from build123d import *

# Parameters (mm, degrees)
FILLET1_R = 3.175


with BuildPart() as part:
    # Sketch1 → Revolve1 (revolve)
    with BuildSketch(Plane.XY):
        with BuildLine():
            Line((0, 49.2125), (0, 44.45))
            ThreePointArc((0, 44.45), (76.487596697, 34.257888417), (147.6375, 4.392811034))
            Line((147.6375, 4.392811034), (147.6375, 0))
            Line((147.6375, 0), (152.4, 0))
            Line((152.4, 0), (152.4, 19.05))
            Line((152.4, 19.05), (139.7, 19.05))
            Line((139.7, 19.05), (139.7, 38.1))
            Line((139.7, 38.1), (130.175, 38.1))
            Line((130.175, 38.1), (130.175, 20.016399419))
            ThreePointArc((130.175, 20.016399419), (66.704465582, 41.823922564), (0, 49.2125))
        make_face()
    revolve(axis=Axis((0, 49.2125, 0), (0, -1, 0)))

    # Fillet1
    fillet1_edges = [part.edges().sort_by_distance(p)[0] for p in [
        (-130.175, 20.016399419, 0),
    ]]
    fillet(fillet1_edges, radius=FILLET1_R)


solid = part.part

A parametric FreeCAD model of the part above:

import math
import FreeCAD as App
import Part
import Sketcher
from FreeCAD import Vector
Q = App.Units.Quantity


def edges_at(feature, points):
    """Names of the edges that pass closest to the given points."""
    edges = feature.Shape.Edges
    near = lambda p: min(range(len(edges)), key=lambda i: edges[i].distToShape(Part.Vertex(*p))[0])
    return sorted({f"Edge{near(p) + 1}" for p in points})

doc = App.newDocument("Part")
body = doc.addObject("PartDesign::Body", "Body")

sketch1 = doc.addObject("Sketcher::SketchObject", "Sketch")
body.addObject(sketch1)
sketch1.AttachmentSupport = (doc.XY_Plane, [""])
sketch1.MapMode = "FlatFace"
sketch1.addGeometry([
    Part.LineSegment(Vector(0, 49.2, 0), Vector(0, 44.5, 0)),
    Part.ArcOfCircle(Part.Circle(Vector(0, -247.6, 0), Vector(0, 0, 1), 292.1), math.radians(60), math.radians(90)),
    Part.LineSegment(Vector(147.6, 4.4, 0), Vector(147.6, 0, 0)),
    Part.LineSegment(Vector(147.6, 0, 0), Vector(152.4, 0, 0)),
    Part.LineSegment(Vector(152.4, 0, 0), Vector(152.4, 19.1, 0)),
    Part.LineSegment(Vector(152.4, 19.1, 0), Vector(139.7, 19.1, 0)),
    Part.LineSegment(Vector(139.7, 19.1, 0), Vector(139.7, 38.1, 0)),
    Part.LineSegment(Vector(139.7, 38.1, 0), Vector(130.2, 38.1, 0)),
    Part.LineSegment(Vector(130.2, 38.1, 0), Vector(130.2, 20, 0)),
    Part.ArcOfCircle(Part.Circle(Vector(0, -255.6, 0), Vector(0, 0, 1), 304.8), math.radians(65), math.radians(90)),
], False)
sketch1.addConstraint([
    Sketcher.Constraint("Coincident", 0, 2, 1, 2),
    Sketcher.Constraint("Coincident", 1, 1, 2, 1),
    Sketcher.Constraint("Coincident", 2, 2, 3, 1),
    Sketcher.Constraint("Coincident", 3, 2, 4, 1),
    Sketcher.Constraint("Coincident", 4, 2, 5, 1),
    Sketcher.Constraint("Coincident", 5, 2, 6, 1),
    Sketcher.Constraint("Coincident", 6, 2, 7, 1),
    Sketcher.Constraint("Coincident", 7, 2, 8, 1),
    Sketcher.Constraint("Coincident", 8, 2, 9, 1),
    Sketcher.Constraint("Coincident", 9, 2, 0, 1),
    Sketcher.Constraint("Vertical", 0),
    Sketcher.Constraint("Vertical", 2),
    Sketcher.Constraint("Horizontal", 3),
    Sketcher.Constraint("Vertical", 4),
    Sketcher.Constraint("Horizontal", 5),
    Sketcher.Constraint("Vertical", 6),
    Sketcher.Constraint("Horizontal", 7),
    Sketcher.Constraint("Vertical", 8),
    Sketcher.Constraint("PointOnObject", 1, 3, -2),
    Sketcher.Constraint("PointOnObject", 9, 3, -2),
    Sketcher.Constraint("PointOnObject", 0, 2, -2),
    Sketcher.Constraint("PointOnObject", 2, 2, -1),
    Sketcher.Constraint("Equal", 3, 0),
    Sketcher.Constraint("Equal", 4, 6),
    Sketcher.Constraint("Radius", 9, Q("12 in")),
    Sketcher.Constraint("Radius", 1, Q("11.5 in")),
    Sketcher.Constraint("DistanceX", 5, 2, 5, 1, Q("0.5 in")),
    Sketcher.Constraint("DistanceX", -1, 1, 3, 2, Q("6 in")),
    Sketcher.Constraint("DistanceY", 4, 2, 0, 2, Q("1 in")),
    Sketcher.Constraint("DistanceY", 4, 1, 4, 2, Q("0.75 in")),
    Sketcher.Constraint("DistanceX", 3, 1, 3, 2, Q("0.1875 in")),
    Sketcher.Constraint("DistanceX", 7, 2, 7, 1, Q("0.375 in")),
])
revolution = doc.addObject("PartDesign::Revolution", "Revolution")
body.addObject(revolution)
revolution.Profile = sketch1
revolution.ReferenceAxis = (sketch1, ["V_Axis"])
revolution.Angle = 360
doc.recompute()

fillet = doc.addObject("PartDesign::Fillet", "Fillet")
body.addObject(fillet)
fillet.Base = (revolution, edges_at(revolution, [(-130.175, 20.016, 0)]))
fillet.Radius = Q("0.125 in")

doc.recompute()
